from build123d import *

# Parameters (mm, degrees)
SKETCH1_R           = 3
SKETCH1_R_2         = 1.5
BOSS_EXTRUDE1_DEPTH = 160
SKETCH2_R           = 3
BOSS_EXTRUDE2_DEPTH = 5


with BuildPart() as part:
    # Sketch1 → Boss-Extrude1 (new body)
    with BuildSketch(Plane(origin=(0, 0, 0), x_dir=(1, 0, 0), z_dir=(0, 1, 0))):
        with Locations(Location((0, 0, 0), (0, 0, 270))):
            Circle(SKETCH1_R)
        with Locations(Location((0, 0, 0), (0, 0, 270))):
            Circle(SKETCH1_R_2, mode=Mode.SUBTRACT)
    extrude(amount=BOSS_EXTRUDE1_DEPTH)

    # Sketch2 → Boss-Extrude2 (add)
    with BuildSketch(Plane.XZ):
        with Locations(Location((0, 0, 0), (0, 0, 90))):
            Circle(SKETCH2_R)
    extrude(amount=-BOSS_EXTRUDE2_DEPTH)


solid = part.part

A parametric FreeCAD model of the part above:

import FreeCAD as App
import Part
import Sketcher

doc = App.newDocument("Part")
body = doc.addObject("PartDesign::Body", "Body")

# Sketch on XZ plane
sketch1 = body.newObject("Sketcher::SketchObject", "Sketch")
sketch1.AttachmentSupport = (doc.getObject("XZ_Plane"), [""])
sketch1.MapMode = "FlatFace"
sketch1.addGeometry(Part.Circle(App.Vector(0, 0, 0), App.Vector(0, 0, 1), 3), False)
sketch1.addGeometry(Part.Circle(App.Vector(0, 0, 0), App.Vector(0, 0, 1), 1.5), False)
sketch1.addConstraint(Sketcher.Constraint("Coincident", 0, 3, -1, 1))
sketch1.addConstraint(Sketcher.Constraint("Coincident", 1, 3, -1, 1))
sketch1.addConstraint(Sketcher.Constraint("Diameter", 0, 6.0))
sketch1.addConstraint(Sketcher.Constraint("Diameter", 1, 3.0))
pad1 = body.newObject("PartDesign::Pad", "Pad")
pad1.Profile = sketch1
pad1.Length = 160
pad1.Reversed = True

# Sketch on XZ plane
sketch2 = body.newObject("Sketcher::SketchObject", "Sketch001")
sketch2.AttachmentSupport = (doc.getObject("XZ_Plane"), [""])
sketch2.MapMode = "FlatFace"
sketch2.addGeometry(Part.Circle(App.Vector(0, 0, 0), App.Vector(0, 0, 1), 3), False)
sketch2.addConstraint(Sketcher.Constraint("Coincident", 0, 3, -1, 1))
sketch2.addConstraint(Sketcher.Constraint("Diameter", 0, 6.0))
pad2 = body.newObject("PartDesign::Pad", "Pad001")
pad2.Profile = sketch2
pad2.Length = 5
pad2.Reversed = True

doc.recompute()
